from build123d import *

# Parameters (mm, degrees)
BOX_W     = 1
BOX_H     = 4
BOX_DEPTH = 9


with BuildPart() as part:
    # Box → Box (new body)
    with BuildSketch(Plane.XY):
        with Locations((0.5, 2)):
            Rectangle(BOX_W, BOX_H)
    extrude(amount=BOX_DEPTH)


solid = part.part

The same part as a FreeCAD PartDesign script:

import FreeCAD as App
import Part
import Sketcher
Q = App.Units.Quantity

doc = App.newDocument("Part")
body = doc.addObject("PartDesign::Body", "Body")

# Sketch on XY plane
sketch1 = body.newObject("Sketcher::SketchObject", "Sketch")
sketch1.AttachmentSupport = (doc.getObject("XY_Plane"), [""])
sketch1.MapMode = "FlatFace"
sketch1.addGeometry([
    Part.LineSegment(App.Vector(0, 4, 0), App.Vector(0, 0, 0)),
    Part.LineSegment(App.Vector(0, 0, 0), App.Vector(1, 0, 0)),
    Part.LineSegment(App.Vector(1, 0, 0), App.Vector(1, 4, 0)),
    Part.LineSegment(App.Vector(1, 4, 0), App.Vector(0, 4, 0)),
], False)
sketch1.addConstraint([
    Sketcher.Constraint("Coincident", 0, 2, 1, 1),
    Sketcher.Constraint("Coincident", 1, 2, 2, 1),
    Sketcher.Constraint("Coincident", 2, 2, 3, 1),
    Sketcher.Constraint("Coincident", 3, 2, 0, 1),
    Sketcher.Constraint("Vertical", 0),
    Sketcher.Constraint("Horizontal", 1),
    Sketcher.Constraint("Vertical", 2),
    Sketcher.Constraint("Horizontal", 3),
    Sketcher.Constraint("Coincident", 0, 2, -1, 1),
    Sketcher.Constraint("DistanceX", 1, 1, 1, 2, Q("1 mm")),
    Sketcher.Constraint("DistanceY", 0, 2, 0, 1, Q("4 mm")),
])
pad1 = body.newObject("PartDesign::Pad", "Pad")
pad1.Profile = sketch1
pad1.Length = 9

doc.recompute()
